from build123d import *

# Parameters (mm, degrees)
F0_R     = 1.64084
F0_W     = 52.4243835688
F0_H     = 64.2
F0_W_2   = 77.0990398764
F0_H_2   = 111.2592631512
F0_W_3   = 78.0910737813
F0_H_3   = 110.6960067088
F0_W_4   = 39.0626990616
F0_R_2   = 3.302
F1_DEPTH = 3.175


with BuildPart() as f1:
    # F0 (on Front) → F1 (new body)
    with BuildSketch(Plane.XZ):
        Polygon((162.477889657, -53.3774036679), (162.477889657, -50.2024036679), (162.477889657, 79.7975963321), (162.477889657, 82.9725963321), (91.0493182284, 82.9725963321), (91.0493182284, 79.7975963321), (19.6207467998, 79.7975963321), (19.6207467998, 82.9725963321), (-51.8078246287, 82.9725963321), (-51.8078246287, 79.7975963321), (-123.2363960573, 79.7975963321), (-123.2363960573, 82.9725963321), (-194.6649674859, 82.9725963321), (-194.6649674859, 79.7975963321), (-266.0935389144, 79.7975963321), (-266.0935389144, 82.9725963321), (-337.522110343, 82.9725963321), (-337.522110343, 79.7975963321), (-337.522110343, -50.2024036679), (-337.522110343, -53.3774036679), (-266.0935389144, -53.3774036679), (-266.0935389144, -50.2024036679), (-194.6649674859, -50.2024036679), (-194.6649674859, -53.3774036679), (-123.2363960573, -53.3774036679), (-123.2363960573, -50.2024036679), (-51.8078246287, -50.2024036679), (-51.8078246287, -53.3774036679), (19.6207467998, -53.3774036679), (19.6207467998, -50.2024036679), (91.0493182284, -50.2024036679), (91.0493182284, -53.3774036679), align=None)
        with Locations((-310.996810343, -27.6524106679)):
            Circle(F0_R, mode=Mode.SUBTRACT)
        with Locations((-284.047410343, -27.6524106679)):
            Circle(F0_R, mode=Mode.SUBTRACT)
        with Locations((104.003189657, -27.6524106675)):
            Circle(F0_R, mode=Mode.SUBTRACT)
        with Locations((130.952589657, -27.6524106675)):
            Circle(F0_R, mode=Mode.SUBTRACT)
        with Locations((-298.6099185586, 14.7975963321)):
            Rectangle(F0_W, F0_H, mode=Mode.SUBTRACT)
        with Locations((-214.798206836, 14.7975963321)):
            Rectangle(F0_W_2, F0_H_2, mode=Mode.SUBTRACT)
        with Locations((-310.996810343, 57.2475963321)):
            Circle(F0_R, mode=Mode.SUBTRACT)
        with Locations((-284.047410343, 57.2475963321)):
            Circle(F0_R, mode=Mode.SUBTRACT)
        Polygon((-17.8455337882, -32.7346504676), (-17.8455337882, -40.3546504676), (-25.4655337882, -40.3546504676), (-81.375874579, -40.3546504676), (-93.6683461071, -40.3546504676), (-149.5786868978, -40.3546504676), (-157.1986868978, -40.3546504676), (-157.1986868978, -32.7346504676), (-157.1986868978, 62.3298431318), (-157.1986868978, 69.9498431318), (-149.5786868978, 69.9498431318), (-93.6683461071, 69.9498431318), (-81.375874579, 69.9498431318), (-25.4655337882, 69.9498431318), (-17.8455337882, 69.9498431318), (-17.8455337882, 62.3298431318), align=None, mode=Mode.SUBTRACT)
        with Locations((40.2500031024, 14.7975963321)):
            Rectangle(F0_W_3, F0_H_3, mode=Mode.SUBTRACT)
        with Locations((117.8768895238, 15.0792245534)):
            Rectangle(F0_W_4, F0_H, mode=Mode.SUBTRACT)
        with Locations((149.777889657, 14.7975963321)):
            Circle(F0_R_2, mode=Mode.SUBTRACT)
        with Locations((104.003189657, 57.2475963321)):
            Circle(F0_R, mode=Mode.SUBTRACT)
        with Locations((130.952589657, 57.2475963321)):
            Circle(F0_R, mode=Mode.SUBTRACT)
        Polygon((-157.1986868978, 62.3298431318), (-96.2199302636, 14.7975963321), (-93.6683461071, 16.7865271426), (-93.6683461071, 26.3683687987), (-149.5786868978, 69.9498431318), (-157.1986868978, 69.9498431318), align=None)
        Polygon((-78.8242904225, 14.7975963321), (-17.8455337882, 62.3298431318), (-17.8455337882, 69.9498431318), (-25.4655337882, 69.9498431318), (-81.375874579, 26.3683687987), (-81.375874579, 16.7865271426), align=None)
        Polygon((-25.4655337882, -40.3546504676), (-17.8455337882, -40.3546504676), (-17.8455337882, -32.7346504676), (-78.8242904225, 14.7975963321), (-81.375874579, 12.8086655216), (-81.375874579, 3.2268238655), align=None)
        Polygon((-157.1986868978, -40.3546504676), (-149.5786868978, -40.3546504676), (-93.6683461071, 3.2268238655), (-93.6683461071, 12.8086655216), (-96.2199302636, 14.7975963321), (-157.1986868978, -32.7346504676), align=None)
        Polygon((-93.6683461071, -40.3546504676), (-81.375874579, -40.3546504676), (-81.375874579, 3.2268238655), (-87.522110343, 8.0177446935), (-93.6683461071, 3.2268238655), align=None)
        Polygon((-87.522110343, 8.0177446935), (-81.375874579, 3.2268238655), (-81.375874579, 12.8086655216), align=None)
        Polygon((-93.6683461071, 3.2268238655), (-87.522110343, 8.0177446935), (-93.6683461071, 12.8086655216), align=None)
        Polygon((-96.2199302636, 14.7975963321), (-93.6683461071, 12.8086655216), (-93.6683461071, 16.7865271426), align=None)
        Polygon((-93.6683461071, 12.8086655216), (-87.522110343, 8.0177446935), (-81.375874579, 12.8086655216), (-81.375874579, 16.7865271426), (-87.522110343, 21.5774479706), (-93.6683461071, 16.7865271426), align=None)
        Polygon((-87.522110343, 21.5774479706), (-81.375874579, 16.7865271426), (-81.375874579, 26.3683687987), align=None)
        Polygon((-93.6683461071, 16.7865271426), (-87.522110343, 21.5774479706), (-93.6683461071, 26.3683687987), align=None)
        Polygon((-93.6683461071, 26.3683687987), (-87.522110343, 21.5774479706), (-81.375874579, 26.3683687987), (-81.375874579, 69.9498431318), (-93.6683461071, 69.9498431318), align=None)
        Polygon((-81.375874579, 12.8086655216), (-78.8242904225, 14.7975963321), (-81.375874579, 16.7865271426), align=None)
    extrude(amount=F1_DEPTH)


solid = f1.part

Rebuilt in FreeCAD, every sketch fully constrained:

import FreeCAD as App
import Part
import Sketcher
Q = App.Units.Quantity

doc = App.newDocument("Part")
body = doc.addObject("PartDesign::Body", "Body")

# Sketch on XZ plane
sketch1 = body.newObject("Sketcher::SketchObject", "Sketch")
sketch1.AttachmentSupport = (doc.getObject("XZ_Plane"), [""])
sketch1.MapMode = "FlatFace"
sketch1.addGeometry([
    Part.LineSegment(App.Vector(162.5, -53.4, 0), App.Vector(162.5, 83, 0)),  # 0
    Part.LineSegment(App.Vector(162.5, 83, 0), App.Vector(91, 83, 0)),  # 1
    Part.LineSegment(App.Vector(91, 83, 0), App.Vector(91, 79.8, 0)),  # 2
    Part.LineSegment(App.Vector(91, 79.8, 0), App.Vector(19.6, 79.8, 0)),  # 3
    Part.LineSegment(App.Vector(19.6, 79.8, 0), App.Vector(19.6, 83, 0)),  # 4
    Part.LineSegment(App.Vector(19.6, 83, 0), App.Vector(-51.8, 83, 0)),  # 5
    Part.LineSegment(App.Vector(-51.8, 83, 0), App.Vector(-51.8, 79.8, 0)),  # 6
    Part.LineSegment(App.Vector(-51.8, 79.8, 0), App.Vector(-123.2, 79.8, 0)),  # 7
    Part.LineSegment(App.Vector(-123.2, 79.8, 0), App.Vector(-123.2, 83, 0)),  # 8
    Part.LineSegment(App.Vector(-123.2, 83, 0), App.Vector(-194.7, 83, 0)),  # 9
    Part.LineSegment(App.Vector(-194.7, 83, 0), App.Vector(-194.7, 79.8, 0)),  # 10
    Part.LineSegment(App.Vector(-194.7, 79.8, 0), App.Vector(-266.1, 79.8, 0)),  # 11
    Part.LineSegment(App.Vector(-266.1, 79.8, 0), App.Vector(-266.1, 83, 0)),  # 12
    Part.LineSegment(App.Vector(-266.1, 83, 0), App.Vector(-337.5, 83, 0)),  # 13
    Part.LineSegment(App.Vector(-337.5, 83, 0), App.Vector(-337.5, -53.4, 0)),  # 14
    Part.LineSegment(App.Vector(-337.5, -53.4, 0), App.Vector(-266.1, -53.4, 0)),  # 15
    Part.LineSegment(App.Vector(-266.1, -53.4, 0), App.Vector(-266.1, -50.2, 0)),  # 16
    Part.LineSegment(App.Vector(-266.1, -50.2, 0), App.Vector(-194.7, -50.2, 0)),  # 17
    Part.LineSegment(App.Vector(-194.7, -50.2, 0), App.Vector(-194.7, -53.4, 0)),  # 18
    Part.LineSegment(App.Vector(-194.7, -53.4, 0), App.Vector(-123.2, -53.4, 0)),  # 19
    Part.LineSegment(App.Vector(-123.2, -53.4, 0), App.Vector(-123.2, -50.2, 0)),  # 20
    Part.LineSegment(App.Vector(-123.2, -50.2, 0), App.Vector(-51.8, -50.2, 0)),  # 21
    Part.LineSegment(App.Vector(-51.8, -50.2, 0), App.Vector(-51.8, -53.4, 0)),  # 22
    Part.LineSegment(App.Vector(-51.8, -53.4, 0), App.Vector(19.6, -53.4, 0)),  # 23
    Part.LineSegment(App.Vector(19.6, -53.4, 0), App.Vector(19.6, -50.2, 0)),  # 24
    Part.LineSegment(App.Vector(19.6, -50.2, 0), App.Vector(91, -50.2, 0)),  # 25
    Part.LineSegment(App.Vector(91, -50.2, 0), App.Vector(91, -53.4, 0)),  # 26
    Part.LineSegment(App.Vector(91, -53.4, 0), App.Vector(162.5, -53.4, 0)),  # 27
    Part.Circle(App.Vector(-311, -27.7, 0), App.Vector(0, 0, 1), 1.6),  # 28
    Part.Circle(App.Vector(-284, -27.7, 0), App.Vector(0, 0, 1), 1.6),  # 29
    Part.LineSegment(App.Vector(-149.6, -40.4, 0), App.Vector(-93.7, 3.2, 0)),  # 30
    Part.LineSegment(App.Vector(-93.7, 3.2, 0), App.Vector(-93.7, -40.4, 0)),  # 31
    Part.LineSegment(App.Vector(-93.7, -40.4, 0), App.Vector(-149.6, -40.4, 0)),  # 32
    Part.LineSegment(App.Vector(-81.4, -40.4, 0), App.Vector(-81.4, 3.2, 0)),  # 33
    Part.LineSegment(App.Vector(-81.4, 3.2, 0), App.Vector(-25.5, -40.4, 0)),  # 34
    Part.LineSegment(App.Vector(-25.5, -40.4, 0), App.Vector(-81.4, -40.4, 0)),  # 35
    Part.Circle(App.Vector(104, -27.7, 0), App.Vector(0, 0, 1), 1.6),  # 36
    Part.Circle(App.Vector(131, -27.7, 0), App.Vector(0, 0, 1), 1.6),  # 37
    Part.LineSegment(App.Vector(-272.4, -17.3, 0), App.Vector(-324.8, -17.3, 0)),  # 38
    Part.LineSegment(App.Vector(-324.8, -17.3, 0), App.Vector(-324.8, 46.9, 0)),  # 39
    Part.LineSegment(App.Vector(-324.8, 46.9, 0), App.Vector(-272.4, 46.9, 0)),  # 40
    Part.LineSegment(App.Vector(-272.4, 46.9, 0), App.Vector(-272.4, -17.3, 0)),  # 41
    Part.LineSegment(App.Vector(-176.2, -40.8, 0), App.Vector(-253.3, -40.8, 0)),  # 42
    Part.LineSegment(App.Vector(-253.3, -40.8, 0), App.Vector(-253.3, 70.4, 0)),  # 43
    Part.LineSegment(App.Vector(-253.3, 70.4, 0), App.Vector(-176.2, 70.4, 0)),  # 44
    Part.LineSegment(App.Vector(-176.2, 70.4, 0), App.Vector(-176.2, -40.8, 0)),  # 45
    Part.LineSegment(App.Vector(-157.2, 62.3, 0), App.Vector(-96.2, 14.8, 0)),  # 46
    Part.LineSegment(App.Vector(-96.2, 14.8, 0), App.Vector(-157.2, -32.7, 0)),  # 47
    Part.LineSegment(App.Vector(-157.2, -32.7, 0), App.Vector(-157.2, 62.3, 0)),  # 48
    Part.Circle(App.Vector(-311, 57.2, 0), App.Vector(0, 0, 1), 1.6),  # 49
    Part.Circle(App.Vector(-284, 57.2, 0), App.Vector(0, 0, 1), 1.6),  # 50
    Part.LineSegment(App.Vector(-149.6, 69.9, 0), App.Vector(-93.7, 69.9, 0)),  # 51
    Part.LineSegment(App.Vector(-93.7, 69.9, 0), App.Vector(-93.7, 26.4, 0)),  # 52
    Part.LineSegment(App.Vector(-93.7, 26.4, 0), App.Vector(-149.6, 69.9, 0)),  # 53
    Part.LineSegment(App.Vector(-17.8, -32.7, 0), App.Vector(-78.8, 14.8, 0)),  # 54
    Part.LineSegment(App.Vector(-78.8, 14.8, 0), App.Vector(-17.8, 62.3, 0)),  # 55
    Part.LineSegment(App.Vector(-17.8, 62.3, 0), App.Vector(-17.8, -32.7, 0)),  # 56
    Part.LineSegment(App.Vector(79.3, -40.6, 0), App.Vector(1.2, -40.6, 0)),  # 57
    Part.LineSegment(App.Vector(1.2, -40.6, 0), App.Vector(1.2, 70.1, 0)),  # 58
    Part.LineSegment(App.Vector(1.2, 70.1, 0), App.Vector(79.3, 70.1, 0)),  # 59
    Part.LineSegment(App.Vector(79.3, 70.1, 0), App.Vector(79.3, -40.6, 0)),  # 60
    Part.LineSegment(App.Vector(137.4, -17, 0), App.Vector(98.3, -17, 0)),  # 61
    Part.LineSegment(App.Vector(98.3, -17, 0), App.Vector(98.3, 47.2, 0)),  # 62
    Part.LineSegment(App.Vector(98.3, 47.2, 0), App.Vector(137.4, 47.2, 0)),  # 63
    Part.LineSegment(App.Vector(137.4, 47.2, 0), App.Vector(137.4, -17, 0)),  # 64
    Part.Circle(App.Vector(149.8, 14.8, 0), App.Vector(0, 0, 1), 3.3),  # 65
    Part.LineSegment(App.Vector(-25.5, 69.9, 0), App.Vector(-81.4, 26.4, 0)),  # 66
    Part.LineSegment(App.Vector(-81.4, 26.4, 0), App.Vector(-81.4, 69.9, 0)),  # 67
    Part.LineSegment(App.Vector(-81.4, 69.9, 0), App.Vector(-25.5, 69.9, 0)),  # 68
    Part.Circle(App.Vector(104, 57.2, 0), App.Vector(0, 0, 1), 1.6),  # 69
    Part.Circle(App.Vector(131, 57.2, 0), App.Vector(0, 0, 1), 1.6),  # 70
], False)
sketch1.addConstraint([
    Sketcher.Constraint("Coincident", 0, 2, 1, 1),
    Sketcher.Constraint("Coincident", 1, 2, 2, 1),
    Sketcher.Constraint("Coincident", 2, 2, 3, 1),
    Sketcher.Constraint("Coincident", 3, 2, 4, 1),
    Sketcher.Constraint("Coincident", 4, 2, 5, 1),
    Sketcher.Constraint("Coincident", 5, 2, 6, 1),
    Sketcher.Constraint("Coincident", 6, 2, 7, 1),
    Sketcher.Constraint("Coincident", 7, 2, 8, 1),
    Sketcher.Constraint("Coincident", 8, 2, 9, 1),
    Sketcher.Constraint("Coincident", 9, 2, 10, 1),
    Sketcher.Constraint("Coincident", 10, 2, 11, 1),
    Sketcher.Constraint("Coincident", 11, 2, 12, 1),
    Sketcher.Constraint("Coincident", 12, 2, 13, 1),
    Sketcher.Constraint("Coincident", 13, 2, 14, 1),
    Sketcher.Constraint("Coincident", 14, 2, 15, 1),
    Sketcher.Constraint("Coincident", 15, 2, 16, 1),
    Sketcher.Constraint("Coincident", 16, 2, 17, 1),
    Sketcher.Constraint("Coincident", 17, 2, 18, 1),
    Sketcher.Constraint("Coincident", 18, 2, 19, 1),
    Sketcher.Constraint("Coincident", 19, 2, 20, 1),
    Sketcher.Constraint("Coincident", 20, 2, 21, 1),
    Sketcher.Constraint("Coincident", 21, 2, 22, 1),
    Sketcher.Constraint("Coincident", 22, 2, 23, 1),
    Sketcher.Constraint("Coincident", 23, 2, 24, 1),
    Sketcher.Constraint("Coincident", 24, 2, 25, 1),
    Sketcher.Constraint("Coincident", 25, 2, 26, 1),
    Sketcher.Constraint("Coincident", 26, 2, 27, 1),
    Sketcher.Constraint("Coincident", 27, 2, 0, 1),
    Sketcher.Constraint("Coincident", 30, 2, 31, 1),
    Sketcher.Constraint("Coincident", 31, 2, 32, 1),
    Sketcher.Constraint("Coincident", 32, 2, 30, 1),
    Sketcher.Constraint("Coincident", 33, 2, 34, 1),
    Sketcher.Constraint("Coincident", 34, 2, 35, 1),
    Sketcher.Constraint("Coincident", 35, 2, 33, 1),
    Sketcher.Constraint("Coincident", 38, 2, 39, 1),
    Sketcher.Constraint("Coincident", 39, 2, 40, 1),
    Sketcher.Constraint("Coincident", 40, 2, 41, 1),
    Sketcher.Constraint("Coincident", 41, 2, 38, 1),
    Sketcher.Constraint("Coincident", 42, 2, 43, 1),
    Sketcher.Constraint("Coincident", 43, 2, 44, 1),
    Sketcher.Constraint("Coincident", 44, 2, 45, 1),
    Sketcher.Constraint("Coincident", 45, 2, 42, 1),
    Sketcher.Constraint("Coincident", 46, 2, 47, 1),
    Sketcher.Constraint("Coincident", 47, 2, 48, 1),
    Sketcher.Constraint("Coincident", 48, 2, 46, 1),
    Sketcher.Constraint("Coincident", 51, 2, 52, 1),
    Sketcher.Constraint("Coincident", 52, 2, 53, 1),
    Sketcher.Constraint("Coincident", 53, 2, 51, 1),
    Sketcher.Constraint("Coincident", 54, 2, 55, 1),
    Sketcher.Constraint("Coincident", 55, 2, 56, 1),
    Sketcher.Constraint("Coincident", 56, 2, 54, 1),
    Sketcher.Constraint("Coincident", 57, 2, 58, 1),
    Sketcher.Constraint("Coincident", 58, 2, 59, 1),
    Sketcher.Constraint("Coincident", 59, 2, 60, 1),
    Sketcher.Constraint("Coincident", 60, 2, 57, 1),
    Sketcher.Constraint("Coincident", 61, 2, 62, 1),
    Sketcher.Constraint("Coincident", 62, 2, 63, 1),
    Sketcher.Constraint("Coincident", 63, 2, 64, 1),
    Sketcher.Constraint("Coincident", 64, 2, 61, 1),
    Sketcher.Constraint("Coincident", 66, 2, 67, 1),
    Sketcher.Constraint("Coincident", 67, 2, 68, 1),
    Sketcher.Constraint("Coincident", 68, 2, 66, 1),
    Sketcher.Constraint("Vertical", 0),
    Sketcher.Constraint("Horizontal", 1),
    Sketcher.Constraint("Vertical", 2),
    Sketcher.Constraint("Horizontal", 3),
    Sketcher.Constraint("Vertical", 4),
    Sketcher.Constraint("Horizontal", 5),
    Sketcher.Constraint("Vertical", 6),
    Sketcher.Constraint("Horizontal", 7),
    Sketcher.Constraint("Vertical", 8),
    Sketcher.Constraint("Horizontal", 9),
    Sketcher.Constraint("Vertical", 10),
    Sketcher.Constraint("Horizontal", 11),
    Sketcher.Constraint("Vertical", 12),
    Sketcher.Constraint("Horizontal", 13),
    Sketcher.Constraint("Vertical", 14),
    Sketcher.Constraint("Horizontal", 15),
    Sketcher.Constraint("Vertical", 16),
    Sketcher.Constraint("Horizontal", 17),
    Sketcher.Constraint("Vertical", 18),
    Sketcher.Constraint("Horizontal", 19),
    Sketcher.Constraint("Vertical", 20),
    Sketcher.Constraint("Horizontal", 21),
    Sketcher.Constraint("Vertical", 22),
    Sketcher.Constraint("Horizontal", 23),
    Sketcher.Constraint("Vertical", 24),
    Sketcher.Constraint("Horizontal", 25),
    Sketcher.Constraint("Vertical", 26),
    Sketcher.Constraint("Horizontal", 27),
    Sketcher.Constraint("Vertical", 31),
    Sketcher.Constraint("Horizontal", 32),
    Sketcher.Constraint("Vertical", 33),
    Sketcher.Constraint("Horizontal", 35),
    Sketcher.Constraint("Horizontal", 38),
    Sketcher.Constraint("Vertical", 39),
    Sketcher.Constraint("Horizontal", 40),
    Sketcher.Constraint("Vertical", 41),
    Sketcher.Constraint("Horizontal", 42),
    Sketcher.Constraint("Vertical", 43),
    Sketcher.Constraint("Horizontal", 44),
    Sketcher.Constraint("Vertical", 45),
    Sketcher.Constraint("Vertical", 48),
    Sketcher.Constraint("Horizontal", 51),
    Sketcher.Constraint("Vertical", 52),
    Sketcher.Constraint("Vertical", 56),
    Sketcher.Constraint("Horizontal", 57),
    Sketcher.Constraint("Vertical", 58),
    Sketcher.Constraint("Horizontal", 59),
    Sketcher.Constraint("Vertical", 60),
    Sketcher.Constraint("Horizontal", 61),
    Sketcher.Constraint("Vertical", 62),
    Sketcher.Constraint("Horizontal", 63),
    Sketcher.Constraint("Vertical", 64),
    Sketcher.Constraint("Vertical", 67),
    Sketcher.Constraint("Horizontal", 68),
    Sketcher.Constraint("Equal", 28, 29),
    Sketcher.Constraint("Equal", 29, 36),
    Sketcher.Constraint("Equal", 36, 37),
    Sketcher.Constraint("Equal", 37, 49),
    Sketcher.Constraint("Equal", 49, 50),
    Sketcher.Constraint("Equal", 50, 69),
    Sketcher.Constraint("Equal", 69, 70),
    Sketcher.Constraint("Parallel", 34, 46),
    Sketcher.Constraint("Parallel", 30, 47),
    Sketcher.Constraint("Parallel", 46, 53),
    Sketcher.Constraint("Parallel", 53, 54),
    Sketcher.Constraint("Parallel", 47, 55),
    Sketcher.Constraint("Parallel", 55, 66),
    Sketcher.Constraint("Horizontal", 28, 3, 29, 3),
    Sketcher.Constraint("Horizontal", 29, 3, 36, 3),
    Sketcher.Constraint("Horizontal", 36, 3, 37, 3),
    Sketcher.Constraint("Horizontal", 49, 3, 50, 3),
    Sketcher.Constraint("Horizontal", 50, 3, 69, 3),
    Sketcher.Constraint("Horizontal", 69, 3, 70, 3),
    Sketcher.Constraint("Horizontal", 1, 2, 4, 2),
    Sketcher.Constraint("Horizontal", 3, 2, 6, 2),
    Sketcher.Constraint("Horizontal", 5, 2, 8, 2),
    Sketcher.Constraint("Horizontal", 7, 2, 10, 2),
    Sketcher.Constraint("Horizontal", 9, 2, 12, 2),
    Sketcher.Constraint("Horizontal", 15, 2, 18, 2),
    Sketcher.Constraint("Horizontal", 17, 2, 20, 2),
    Sketcher.Constraint("Horizontal", 19, 2, 22, 2),
    Sketcher.Constraint("Horizontal", 21, 2, 24, 2),
    Sketcher.Constraint("Horizontal", 23, 2, 26, 2),
    Sketcher.Constraint("Horizontal", 30, 2, 33, 2),
    Sketcher.Constraint("Horizontal", 32, 2, 34, 2),
    Sketcher.Constraint("Horizontal", 65, 3, 46, 2),
    Sketcher.Constraint("Horizontal", 46, 2, 54, 2),
    Sketcher.Constraint("Horizontal", 48, 2, 55, 2),
    Sketcher.Constraint("Horizontal", 47, 2, 56, 2),
    Sketcher.Constraint("Horizontal", 52, 2, 66, 2),
    Sketcher.Constraint("Horizontal", 53, 2, 67, 2),
    Sketcher.Constraint("Vertical", 28, 3, 49, 3),
    Sketcher.Constraint("Vertical", 29, 3, 50, 3),
    Sketcher.Constraint("Vertical", 36, 3, 69, 3),
    Sketcher.Constraint("Vertical", 37, 3, 70, 3),
    Sketcher.Constraint("Vertical", 12, 2, 15, 2),
    Sketcher.Constraint("Vertical", 10, 2, 17, 2),
    Sketcher.Constraint("Vertical", 8, 2, 19, 2),
    Sketcher.Constraint("Vertical", 6, 2, 21, 2),
    Sketcher.Constraint("Vertical", 4, 2, 23, 2),
    Sketcher.Constraint("Vertical", 2, 2, 25, 2),
    Sketcher.Constraint("Vertical", 31, 2, 51, 2),
    Sketcher.Constraint("Vertical", 32, 2, 53, 2),
    Sketcher.Constraint("Vertical", 35, 2, 66, 2),
    Sketcher.Constraint("Equal", 1, 3),
    Sketcher.Constraint("Equal", 3, 5),
    Sketcher.Constraint("Equal", 5, 7),
    Sketcher.Constraint("Equal", 7, 9),
    Sketcher.Constraint("Equal", 9, 11),
    Sketcher.Constraint("Equal", 11, 13),
    Sketcher.Constraint("Equal", 12, 16),
    Sketcher.Constraint("Equal", 41, 62),
    Sketcher.Constraint("Diameter", 65, Q("0.26 in")),
    Sketcher.Constraint("Diameter", 28, Q("0.1292 in")),
    Sketcher.Constraint("DistanceY", 2, 2, 2, 1, Q("0.125 in")),
    Sketcher.Constraint("DistanceX", 61, 2, 61, 1, Q("39.062699 mm")),
    Sketcher.Constraint("DistanceY", 0, 1, 0, 2, Q("136.35 mm")),
    Sketcher.Constraint("DistanceY", 39, 1, 39, 2, Q("64.2 mm")),
    Sketcher.Constraint("DistanceX", 1, 2, 1, 1, Q("71.428571 mm")),
    Sketcher.Constraint("DistanceX", 32, 2, 32, 1, Q("55.910341 mm")),
    Sketcher.Constraint("DistanceX", 42, 2, 42, 1, Q("77.09904 mm")),
    Sketcher.Constraint("DistanceY", -1, 1, 58, 2, Q("70.1456 mm")),
    Sketcher.Constraint("Distance", 30, Q("70.889429 mm")),
    Sketcher.Constraint("DistanceX", 38, 2, 38, 1, Q("52.424384 mm")),
    Sketcher.Constraint("DistanceX", 57, 2, 57, 1, Q("78.091074 mm")),
    Sketcher.Constraint("DistanceY", 43, 1, 43, 2, Q("111.259263 mm")),
    Sketcher.Constraint("DistanceY", 48, 1, 48, 2, Q("95.064494 mm")),
    Sketcher.Constraint("DistanceY", 58, 1, 58, 2, Q("110.696007 mm")),
    Sketcher.Constraint("DistanceX", 28, 3, -1, 1, Q("310.99681 mm")),
    Sketcher.Constraint("DistanceY", 28, 3, -1, 1, Q("27.652411 mm")),
    Sketcher.Constraint("DistanceX", 29, 3, -1, 1, Q("284.04741 mm")),
    Sketcher.Constraint("DistanceX", -1, 1, 36, 3, Q("104.00319 mm")),
    Sketcher.Constraint("DistanceX", -1, 1, 37, 3, Q("130.95259 mm")),
    Sketcher.Constraint("DistanceX", -1, 1, 65, 3, Q("149.77789 mm")),
    Sketcher.Constraint("DistanceX", -1, 1, 0, 2, Q("162.47789 mm")),
    Sketcher.Constraint("DistanceY", 31, 2, -1, 1, Q("40.35465 mm")),
    Sketcher.Constraint("DistanceX", 38, 2, -1, 1, Q("324.82211 mm")),
    Sketcher.Constraint("DistanceX", 46, 2, -1, 1, Q("96.21993 mm")),
    Sketcher.Constraint("DistanceY", 47, 2, -1, 1, Q("32.73465 mm")),
    Sketcher.Constraint("DistanceY", -1, 1, 52, 2, Q("26.368369 mm")),
    Sketcher.Constraint("DistanceX", 54, 2, -1, 1, Q("78.82429 mm")),
    Sketcher.Constraint("DistanceX", -1, 1, 59, 2, Q("79.29554 mm")),
    Sketcher.Constraint("DistanceX", -1, 1, 61, 2, Q("98.34554 mm")),
    Sketcher.Constraint("DistanceY", -1, 1, 49, 3, Q("57.247596 mm")),
    Sketcher.Constraint("DistanceY", -1, 1, 0, 2, Q("82.972596 mm")),
    Sketcher.Constraint("DistanceX", 30, 2, -1, 1, Q("93.668346 mm")),
    Sketcher.Constraint("DistanceX", 33, 2, -1, 1, Q("81.375875 mm")),
    Sketcher.Constraint("DistanceY", 38, 2, -1, 1, Q("17.302404 mm")),
    Sketcher.Constraint("DistanceX", 42, 2, -1, 1, Q("253.347727 mm")),
    Sketcher.Constraint("DistanceY", 42, 2, -1, 1, Q("40.832035 mm")),
    Sketcher.Constraint("DistanceY", 61, 2, -1, 1, Q("17.020775 mm")),
])
pad1 = body.newObject("PartDesign::Pad", "Pad")
pad1.Profile = sketch1
pad1.Length = Q("0.125 in")

doc.recompute()
